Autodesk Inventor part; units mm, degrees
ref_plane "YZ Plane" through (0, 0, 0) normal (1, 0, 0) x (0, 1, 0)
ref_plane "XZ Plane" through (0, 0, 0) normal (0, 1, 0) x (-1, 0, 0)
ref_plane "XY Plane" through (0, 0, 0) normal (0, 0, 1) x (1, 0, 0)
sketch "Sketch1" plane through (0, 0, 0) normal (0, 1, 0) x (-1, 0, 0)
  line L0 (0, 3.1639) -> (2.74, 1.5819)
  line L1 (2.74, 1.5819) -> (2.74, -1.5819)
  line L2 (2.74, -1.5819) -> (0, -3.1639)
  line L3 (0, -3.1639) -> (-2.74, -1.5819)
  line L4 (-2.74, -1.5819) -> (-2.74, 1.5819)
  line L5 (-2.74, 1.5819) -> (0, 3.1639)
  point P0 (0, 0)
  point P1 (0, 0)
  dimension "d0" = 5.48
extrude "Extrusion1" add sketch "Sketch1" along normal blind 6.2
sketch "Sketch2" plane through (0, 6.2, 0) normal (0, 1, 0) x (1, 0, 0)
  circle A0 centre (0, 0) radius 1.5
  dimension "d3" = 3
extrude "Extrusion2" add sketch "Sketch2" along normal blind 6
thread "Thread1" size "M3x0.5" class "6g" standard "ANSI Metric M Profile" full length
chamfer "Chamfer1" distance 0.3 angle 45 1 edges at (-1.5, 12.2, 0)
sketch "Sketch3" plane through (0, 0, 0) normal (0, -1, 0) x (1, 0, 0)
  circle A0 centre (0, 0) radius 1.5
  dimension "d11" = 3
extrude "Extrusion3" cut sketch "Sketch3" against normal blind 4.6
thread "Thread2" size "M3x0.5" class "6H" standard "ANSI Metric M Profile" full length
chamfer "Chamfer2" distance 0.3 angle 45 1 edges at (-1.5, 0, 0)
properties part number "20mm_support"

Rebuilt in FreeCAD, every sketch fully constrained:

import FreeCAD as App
import Part
import Sketcher

V = App.Vector
Q = App.Units.Quantity


def edges_at(feature, points):
    """Names of the edges that pass closest to the given points."""
    edges = feature.Shape.Edges
    near = lambda p: min(range(len(edges)), key=lambda i: edges[i].distToShape(Part.Vertex(*p))[0])
    return sorted({f"Edge{near(p) + 1}" for p in points})


def add_polygon(sketch, points):
    """Adds a closed chain of lines whose ends are joined by coincident constraints."""
    first, n = sketch.GeometryCount, len(points)
    for a, b in zip(points, points[1:] + points[:1]):
        sketch.addGeometry(Part.LineSegment(App.Vector(*a, 0), App.Vector(*b, 0)), False)
    for i in range(n):
        sketch.addConstraint(Sketcher.Constraint("Coincident", first + i, 2, first + (i + 1) % n, 1))

doc = App.newDocument("Part")
params = doc.addObject("Spreadsheet::Sheet", "Params")
for row, (alias, value) in enumerate([
    ("pad1_length", "6.2 mm"),
    ("sketch2_diameter", "3 mm"),
    ("pad2_length", "6 mm"),
    ("chamfer_size", "0.3 mm"),
    ("sketch3_diameter", "3 mm"),
    ("pocket1_length", "4.6 mm"),
    ("chamfer2_size", "0.3 mm"),
], start=1):
    params.set(f"A{row}", alias)
    params.set(f"B{row}", "=" + value)
    params.setAlias(f"B{row}", alias)

body = doc.addObject("PartDesign::Body", "Body")

# Sketch on XZ plane
sketch1 = doc.addObject("Sketcher::SketchObject", "Sketch")
body.addObject(sketch1)
sketch1.AttachmentSupport = (doc.XZ_Plane, [""])
sketch1.MapMode = "FlatFace"
add_polygon(sketch1, [(-2.74, 1.5819), (0, 3.1639), (2.74, 1.5819), (2.74, -1.5819), (0, -3.1639), (-2.74, -1.5819)])  # lines 0-5
sketch1.addConstraint([
    Sketcher.Constraint("Vertical", 2),
    Sketcher.Constraint("Vertical", 5),
    Sketcher.Constraint("Symmetric", 0, 2, 3, 2, -1, 1),
    Sketcher.Constraint("Symmetric", 1, 2, 4, 2, -1, 1),
    Sketcher.Constraint("PointOnObject", 0, 2, -2),
    Sketcher.Constraint("Parallel", 0, 3),
    Sketcher.Constraint("Horizontal", 2, 2, 4, 2),
    Sketcher.Constraint("Angle", 0, Q("30.001 deg")),
    Sketcher.Constraint("DistanceX", 4, 2, 2, 2, Q("5.48 mm")),
    Sketcher.Constraint("DistanceY", 2, 2, 2, 1, Q("3.1638 mm")),
])
pad1 = doc.addObject("PartDesign::Pad", "Pad")
body.addObject(pad1)
pad1.Profile = sketch1
pad1.setExpression("Length", "Params.pad1_length")
pad1.Reversed = True

# Sketch on XZ plane
sketch2 = doc.addObject("Sketcher::SketchObject", "Sketch001")
body.addObject(sketch2)
sketch2.AttachmentSupport = (doc.XZ_Plane, [""])
sketch2.MapMode = "FlatFace"
sketch2.AttachmentOffset = App.Placement(V(0, 0, -6.2), App.Rotation())
sketch2.addGeometry(Part.Circle(V(0, 0, 0), V(0, 0, 1), 1.5), False)
sketch2.addConstraint([
    Sketcher.Constraint("Coincident", 0, 3, -1, 1),
    Sketcher.Constraint("Diameter", 0, Q("3 mm")),
])
sketch2.setExpression("Constraints[1]", "Params.sketch2_diameter")
pad2 = doc.addObject("PartDesign::Pad", "Pad001")
body.addObject(pad2)
pad2.Profile = sketch2
pad2.setExpression("Length", "Params.pad2_length")
pad2.Reversed = True
doc.recompute()

chamfer = doc.addObject("PartDesign::Chamfer", "Chamfer")
body.addObject(chamfer)
chamfer.Base = (pad2, edges_at(pad2, [(-1.5, 12.2, 0)]))
chamfer.setExpression("Size", "Params.chamfer_size")

# Sketch on XZ plane
sketch3 = doc.addObject("Sketcher::SketchObject", "Sketch002")
body.addObject(sketch3)
sketch3.AttachmentSupport = (doc.XZ_Plane, [""])
sketch3.MapMode = "FlatFace"
sketch3.addGeometry(Part.Circle(V(0, 0, 0), V(0, 0, 1), 1.5), False)
sketch3.addConstraint([
    Sketcher.Constraint("Coincident", 0, 3, -1, 1),
    Sketcher.Constraint("Diameter", 0, Q("3 mm")),
])
sketch3.setExpression("Constraints[1]", "Params.sketch3_diameter")
pocket1 = doc.addObject("PartDesign::Pocket", "Pocket")
body.addObject(pocket1)
pocket1.Profile = sketch3
pocket1.setExpression("Length", "Params.pocket1_length")
doc.recompute()

chamfer2 = doc.addObject("PartDesign::Chamfer", "Chamfer001")
body.addObject(chamfer2)
chamfer2.Base = (pocket1, edges_at(pocket1, [(-1.5, 0, 0)]))
chamfer2.setExpression("Size", "Params.chamfer2_size")

doc.recompute()
